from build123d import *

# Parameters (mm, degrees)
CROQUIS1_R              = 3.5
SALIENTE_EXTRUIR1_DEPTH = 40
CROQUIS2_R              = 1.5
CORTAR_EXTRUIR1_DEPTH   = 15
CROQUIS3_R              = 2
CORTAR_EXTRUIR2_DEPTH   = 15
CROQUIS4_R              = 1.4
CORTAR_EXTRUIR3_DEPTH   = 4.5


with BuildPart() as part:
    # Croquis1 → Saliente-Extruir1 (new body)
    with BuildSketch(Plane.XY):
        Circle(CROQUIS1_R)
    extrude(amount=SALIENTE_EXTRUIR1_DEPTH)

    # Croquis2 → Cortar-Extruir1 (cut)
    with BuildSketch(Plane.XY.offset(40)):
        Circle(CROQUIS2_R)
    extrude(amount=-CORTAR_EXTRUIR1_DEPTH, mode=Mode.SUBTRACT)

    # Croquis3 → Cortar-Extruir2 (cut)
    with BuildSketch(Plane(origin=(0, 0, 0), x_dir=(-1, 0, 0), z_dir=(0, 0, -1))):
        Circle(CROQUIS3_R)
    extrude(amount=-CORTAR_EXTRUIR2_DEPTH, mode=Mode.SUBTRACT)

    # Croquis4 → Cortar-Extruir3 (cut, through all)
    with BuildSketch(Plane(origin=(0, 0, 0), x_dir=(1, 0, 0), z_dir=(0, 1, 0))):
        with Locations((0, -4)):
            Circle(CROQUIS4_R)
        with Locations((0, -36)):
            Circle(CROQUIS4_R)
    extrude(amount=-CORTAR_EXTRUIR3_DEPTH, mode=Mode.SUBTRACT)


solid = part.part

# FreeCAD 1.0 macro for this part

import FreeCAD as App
import Part
import Sketcher

doc = App.newDocument("Part")
params = doc.addObject("Spreadsheet::Sheet", "Params")
for row, (alias, value) in enumerate([
    ("sketch1_diameter", "7 mm"),
    ("pad1_length", "40 mm"),
    ("sketch2_diameter", "3 mm"),
    ("pocket1_length", "15 mm"),
    ("sketch3_diameter", "4 mm"),
    ("pocket2_length", "15 mm"),
    ("sketch4_diameter", "2.8 mm"),
], start=1):
    params.set(f"A{row}", alias)
    params.set(f"B{row}", "=" + value)
    params.setAlias(f"B{row}", alias)

body = doc.addObject("PartDesign::Body", "Body")

# Sketch on XY plane
sketch1 = doc.addObject("Sketcher::SketchObject", "Sketch")
body.addObject(sketch1)
sketch1.AttachmentSupport = (doc.XY_Plane, [""])
sketch1.MapMode = "FlatFace"
sketch1.addGeometry(Part.Circle(App.Vector(0, 0, 0), App.Vector(0, 0, 1), 3.5), False)
sketch1.addConstraint([
    Sketcher.Constraint("Coincident", 0, 3, -1, 1),
    Sketcher.Constraint("Diameter", 0, 7.0),
])
sketch1.setExpression("Constraints[1]", "Params.sketch1_diameter")
pad1 = doc.addObject("PartDesign::Pad", "Pad")
body.addObject(pad1)
pad1.Profile = sketch1
pad1.setExpression("Length", "Params.pad1_length")

# Sketch on XY plane
sketch2 = doc.addObject("Sketcher::SketchObject", "Sketch001")
body.addObject(sketch2)
sketch2.AttachmentSupport = (doc.XY_Plane, [""])
sketch2.MapMode = "FlatFace"
sketch2.AttachmentOffset = App.Placement(App.Vector(0, 0, 40), App.Rotation())
sketch2.addGeometry(Part.Circle(App.Vector(0, 0, 0), App.Vector(0, 0, 1), 1.5), False)
sketch2.addConstraint([
    Sketcher.Constraint("Coincident", 0, 3, -1, 1),
    Sketcher.Constraint("Diameter", 0, 3.0),
])
sketch2.setExpression("Constraints[1]", "Params.sketch2_diameter")
pocket1 = doc.addObject("PartDesign::Pocket", "Pocket")
body.addObject(pocket1)
pocket1.Profile = sketch2
pocket1.setExpression("Length", "Params.pocket1_length")

# Sketch on XY plane
sketch3 = doc.addObject("Sketcher::SketchObject", "Sketch002")
body.addObject(sketch3)
sketch3.AttachmentSupport = (doc.XY_Plane, [""])
sketch3.MapMode = "FlatFace"
sketch3.addGeometry(Part.Circle(App.Vector(0, 0, 0), App.Vector(0, 0, 1), 2), False)
sketch3.addConstraint([
    Sketcher.Constraint("Coincident", 0, 3, -1, 1),
    Sketcher.Constraint("Diameter", 0, 4.0),
])
sketch3.setExpression("Constraints[1]", "Params.sketch3_diameter")
pocket2 = doc.addObject("PartDesign::Pocket", "Pocket001")
body.addObject(pocket2)
pocket2.Profile = sketch3
pocket2.setExpression("Length", "Params.pocket2_length")
pocket2.Reversed = True

# Sketch on XZ plane
sketch4 = doc.addObject("Sketcher::SketchObject", "Sketch003")
body.addObject(sketch4)
sketch4.AttachmentSupport = (doc.XZ_Plane, [""])
sketch4.MapMode = "FlatFace"
sketch4.addGeometry([
    Part.Circle(App.Vector(0, 4, 0), App.Vector(0, 0, 1), 1.4),
    Part.Circle(App.Vector(0, 36, 0), App.Vector(0, 0, 1), 1.4),
], False)
sketch4.addConstraint([
    Sketcher.Constraint("Equal", 0, 1),
    Sketcher.Constraint("PointOnObject", 0, 3, -2),
    Sketcher.Constraint("PointOnObject", 1, 3, -2),
    Sketcher.Constraint("Diameter", 0, 2.8),
    Sketcher.Constraint("DistanceY", -1, 1, 0, 3, 4.0),
    Sketcher.Constraint("DistanceY", -1, 1, 1, 3, 36.0),
])
sketch4.setExpression("Constraints[3]", "Params.sketch4_diameter")
pocket3 = doc.addObject("PartDesign::Pocket", "Pocket002")
body.addObject(pocket3)
pocket3.Profile = sketch4
pocket3.Type = "ThroughAll"
pocket3.Reversed = True

doc.recompute()
